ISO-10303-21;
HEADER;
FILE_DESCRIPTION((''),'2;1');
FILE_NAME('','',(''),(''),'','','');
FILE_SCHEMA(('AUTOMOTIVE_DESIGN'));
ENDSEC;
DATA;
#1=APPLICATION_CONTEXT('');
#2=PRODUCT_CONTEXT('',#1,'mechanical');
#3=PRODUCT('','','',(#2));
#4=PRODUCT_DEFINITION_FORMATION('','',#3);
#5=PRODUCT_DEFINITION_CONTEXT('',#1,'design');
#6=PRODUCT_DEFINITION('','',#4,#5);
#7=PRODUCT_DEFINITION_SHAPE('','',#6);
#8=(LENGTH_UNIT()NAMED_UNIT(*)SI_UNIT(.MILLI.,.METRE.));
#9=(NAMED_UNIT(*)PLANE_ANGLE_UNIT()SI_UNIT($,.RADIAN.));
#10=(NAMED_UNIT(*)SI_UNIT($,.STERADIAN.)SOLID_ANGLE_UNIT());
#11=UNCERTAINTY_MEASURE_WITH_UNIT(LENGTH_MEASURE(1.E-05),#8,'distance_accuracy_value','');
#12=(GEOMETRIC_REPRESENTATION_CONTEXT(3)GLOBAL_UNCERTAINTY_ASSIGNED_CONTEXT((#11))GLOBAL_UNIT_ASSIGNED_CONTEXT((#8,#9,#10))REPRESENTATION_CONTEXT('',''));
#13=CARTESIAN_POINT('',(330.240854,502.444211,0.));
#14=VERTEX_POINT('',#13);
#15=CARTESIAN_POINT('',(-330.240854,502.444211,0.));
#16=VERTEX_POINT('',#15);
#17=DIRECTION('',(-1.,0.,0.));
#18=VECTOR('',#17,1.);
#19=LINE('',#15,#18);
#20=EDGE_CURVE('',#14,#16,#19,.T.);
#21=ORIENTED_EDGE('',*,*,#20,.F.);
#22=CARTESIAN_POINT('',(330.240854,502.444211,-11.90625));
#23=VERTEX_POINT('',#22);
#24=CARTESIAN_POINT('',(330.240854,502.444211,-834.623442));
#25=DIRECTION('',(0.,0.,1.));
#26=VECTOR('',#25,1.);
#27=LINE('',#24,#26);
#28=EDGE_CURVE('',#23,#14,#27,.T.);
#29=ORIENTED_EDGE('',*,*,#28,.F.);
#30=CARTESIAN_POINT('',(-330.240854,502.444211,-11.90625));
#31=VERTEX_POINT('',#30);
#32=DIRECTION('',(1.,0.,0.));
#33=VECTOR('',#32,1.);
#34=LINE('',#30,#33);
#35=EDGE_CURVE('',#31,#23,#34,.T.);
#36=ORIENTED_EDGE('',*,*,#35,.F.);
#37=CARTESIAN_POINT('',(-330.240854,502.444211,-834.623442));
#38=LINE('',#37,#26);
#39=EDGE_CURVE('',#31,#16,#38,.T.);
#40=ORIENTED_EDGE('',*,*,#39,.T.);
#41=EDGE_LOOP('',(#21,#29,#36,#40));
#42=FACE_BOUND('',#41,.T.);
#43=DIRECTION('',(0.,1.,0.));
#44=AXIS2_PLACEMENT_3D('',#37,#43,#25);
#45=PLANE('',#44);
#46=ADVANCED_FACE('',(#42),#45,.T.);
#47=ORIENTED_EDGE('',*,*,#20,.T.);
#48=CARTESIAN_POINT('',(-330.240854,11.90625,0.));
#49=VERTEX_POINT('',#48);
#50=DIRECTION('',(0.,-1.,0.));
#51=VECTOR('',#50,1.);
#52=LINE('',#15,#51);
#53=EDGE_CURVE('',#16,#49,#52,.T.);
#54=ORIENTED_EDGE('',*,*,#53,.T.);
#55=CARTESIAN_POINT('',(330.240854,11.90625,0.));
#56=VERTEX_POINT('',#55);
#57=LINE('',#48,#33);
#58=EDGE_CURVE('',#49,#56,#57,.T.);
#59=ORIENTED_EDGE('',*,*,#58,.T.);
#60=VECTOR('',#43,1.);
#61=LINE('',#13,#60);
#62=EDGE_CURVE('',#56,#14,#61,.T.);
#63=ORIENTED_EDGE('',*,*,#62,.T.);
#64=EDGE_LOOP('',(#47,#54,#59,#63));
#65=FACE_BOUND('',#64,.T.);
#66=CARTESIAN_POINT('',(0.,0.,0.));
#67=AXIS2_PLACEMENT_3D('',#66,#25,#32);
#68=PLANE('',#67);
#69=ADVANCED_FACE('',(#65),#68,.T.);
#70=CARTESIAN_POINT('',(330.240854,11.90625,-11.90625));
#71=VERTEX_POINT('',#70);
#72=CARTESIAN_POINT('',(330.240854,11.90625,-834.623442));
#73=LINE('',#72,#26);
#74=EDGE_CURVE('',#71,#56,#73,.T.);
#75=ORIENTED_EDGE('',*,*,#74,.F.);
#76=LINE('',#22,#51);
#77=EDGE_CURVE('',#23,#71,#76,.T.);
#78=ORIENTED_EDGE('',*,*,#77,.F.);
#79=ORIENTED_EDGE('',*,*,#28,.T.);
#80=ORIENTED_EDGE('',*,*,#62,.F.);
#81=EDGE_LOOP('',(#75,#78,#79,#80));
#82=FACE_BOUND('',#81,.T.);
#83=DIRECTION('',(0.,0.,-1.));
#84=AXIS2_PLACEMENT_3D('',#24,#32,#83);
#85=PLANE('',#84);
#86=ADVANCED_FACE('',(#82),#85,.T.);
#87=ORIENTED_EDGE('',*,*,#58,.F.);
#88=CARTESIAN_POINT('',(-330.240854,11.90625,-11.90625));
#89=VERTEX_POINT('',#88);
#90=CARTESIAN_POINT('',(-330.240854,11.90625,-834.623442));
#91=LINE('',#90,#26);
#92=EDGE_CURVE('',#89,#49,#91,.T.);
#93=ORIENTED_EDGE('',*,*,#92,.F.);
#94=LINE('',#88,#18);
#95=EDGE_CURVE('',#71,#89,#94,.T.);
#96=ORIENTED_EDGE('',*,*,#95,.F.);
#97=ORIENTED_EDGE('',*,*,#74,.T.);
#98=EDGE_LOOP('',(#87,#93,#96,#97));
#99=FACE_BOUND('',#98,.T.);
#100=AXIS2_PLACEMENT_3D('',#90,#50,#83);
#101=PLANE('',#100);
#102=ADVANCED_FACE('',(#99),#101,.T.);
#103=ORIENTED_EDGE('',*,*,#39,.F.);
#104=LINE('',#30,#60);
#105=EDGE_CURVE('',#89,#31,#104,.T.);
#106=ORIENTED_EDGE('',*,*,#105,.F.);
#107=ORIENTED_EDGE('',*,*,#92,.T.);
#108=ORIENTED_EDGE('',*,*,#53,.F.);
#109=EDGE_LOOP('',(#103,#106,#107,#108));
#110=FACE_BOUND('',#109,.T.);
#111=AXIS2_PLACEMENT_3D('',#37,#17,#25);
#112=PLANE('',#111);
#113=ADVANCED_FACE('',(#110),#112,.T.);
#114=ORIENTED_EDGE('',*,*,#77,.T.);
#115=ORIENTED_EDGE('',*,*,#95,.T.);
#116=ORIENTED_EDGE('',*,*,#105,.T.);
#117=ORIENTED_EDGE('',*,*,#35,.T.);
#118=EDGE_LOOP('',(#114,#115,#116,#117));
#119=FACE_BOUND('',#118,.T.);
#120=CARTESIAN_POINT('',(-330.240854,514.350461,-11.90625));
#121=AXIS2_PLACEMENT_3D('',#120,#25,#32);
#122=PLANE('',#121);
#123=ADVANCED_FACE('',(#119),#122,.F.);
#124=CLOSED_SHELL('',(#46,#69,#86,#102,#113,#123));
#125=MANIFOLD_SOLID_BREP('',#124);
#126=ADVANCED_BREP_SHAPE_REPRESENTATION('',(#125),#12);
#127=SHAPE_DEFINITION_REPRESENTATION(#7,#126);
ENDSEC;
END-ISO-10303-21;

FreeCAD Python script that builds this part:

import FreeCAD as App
import Part
import Sketcher
from FreeCAD import Vector
Q = App.Units.Quantity


def add_polygon(sketch, points):
    """Adds a closed chain of lines whose ends are joined by coincident constraints."""
    first, n = sketch.GeometryCount, len(points)
    for a, b in zip(points, points[1:] + points[:1]):
        sketch.addGeometry(Part.LineSegment(App.Vector(*a, 0), App.Vector(*b, 0)), False)
    for i in range(n):
        sketch.addConstraint(Sketcher.Constraint("Coincident", first + i, 2, first + (i + 1) % n, 1))

doc = App.newDocument("Part")
body = doc.addObject("PartDesign::Body", "Body")

# Sketch on XY plane
sketch1 = doc.addObject("Sketcher::SketchObject", "Sketch")
body.addObject(sketch1)
sketch1.AttachmentSupport = (doc.XY_Plane, [""])
sketch1.MapMode = "FlatFace"
add_polygon(sketch1, [(-330.240854, 502.444211), (-330.240854, 11.90625), (330.240854, 11.90625), (330.240854, 502.444211)])  # lines 0-3
sketch1.addConstraint(Sketcher.Constraint("Vertical", 0))
sketch1.addConstraint(Sketcher.Constraint("Horizontal", 1))
sketch1.addConstraint(Sketcher.Constraint("Vertical", 2))
sketch1.addConstraint(Sketcher.Constraint("Horizontal", 3))
sketch1.addConstraint(Sketcher.Constraint("DistanceY", -1, 1, 0, 2, Q("0.46875 in")))
sketch1.addConstraint(Sketcher.Constraint("DistanceX", 1, 1, 1, 2, 660.481708))
sketch1.addConstraint(Sketcher.Constraint("DistanceY", 0, 2, 0, 1, 490.537961))
sketch1.addConstraint(Sketcher.Constraint("DistanceX", 0, 2, -1, 1, 330.240854))
pad1 = doc.addObject("PartDesign::Pad", "Pad")
body.addObject(pad1)
pad1.Profile = sketch1
pad1.Length = Q("0.46875 in")
pad1.Reversed = True

doc.recompute()
